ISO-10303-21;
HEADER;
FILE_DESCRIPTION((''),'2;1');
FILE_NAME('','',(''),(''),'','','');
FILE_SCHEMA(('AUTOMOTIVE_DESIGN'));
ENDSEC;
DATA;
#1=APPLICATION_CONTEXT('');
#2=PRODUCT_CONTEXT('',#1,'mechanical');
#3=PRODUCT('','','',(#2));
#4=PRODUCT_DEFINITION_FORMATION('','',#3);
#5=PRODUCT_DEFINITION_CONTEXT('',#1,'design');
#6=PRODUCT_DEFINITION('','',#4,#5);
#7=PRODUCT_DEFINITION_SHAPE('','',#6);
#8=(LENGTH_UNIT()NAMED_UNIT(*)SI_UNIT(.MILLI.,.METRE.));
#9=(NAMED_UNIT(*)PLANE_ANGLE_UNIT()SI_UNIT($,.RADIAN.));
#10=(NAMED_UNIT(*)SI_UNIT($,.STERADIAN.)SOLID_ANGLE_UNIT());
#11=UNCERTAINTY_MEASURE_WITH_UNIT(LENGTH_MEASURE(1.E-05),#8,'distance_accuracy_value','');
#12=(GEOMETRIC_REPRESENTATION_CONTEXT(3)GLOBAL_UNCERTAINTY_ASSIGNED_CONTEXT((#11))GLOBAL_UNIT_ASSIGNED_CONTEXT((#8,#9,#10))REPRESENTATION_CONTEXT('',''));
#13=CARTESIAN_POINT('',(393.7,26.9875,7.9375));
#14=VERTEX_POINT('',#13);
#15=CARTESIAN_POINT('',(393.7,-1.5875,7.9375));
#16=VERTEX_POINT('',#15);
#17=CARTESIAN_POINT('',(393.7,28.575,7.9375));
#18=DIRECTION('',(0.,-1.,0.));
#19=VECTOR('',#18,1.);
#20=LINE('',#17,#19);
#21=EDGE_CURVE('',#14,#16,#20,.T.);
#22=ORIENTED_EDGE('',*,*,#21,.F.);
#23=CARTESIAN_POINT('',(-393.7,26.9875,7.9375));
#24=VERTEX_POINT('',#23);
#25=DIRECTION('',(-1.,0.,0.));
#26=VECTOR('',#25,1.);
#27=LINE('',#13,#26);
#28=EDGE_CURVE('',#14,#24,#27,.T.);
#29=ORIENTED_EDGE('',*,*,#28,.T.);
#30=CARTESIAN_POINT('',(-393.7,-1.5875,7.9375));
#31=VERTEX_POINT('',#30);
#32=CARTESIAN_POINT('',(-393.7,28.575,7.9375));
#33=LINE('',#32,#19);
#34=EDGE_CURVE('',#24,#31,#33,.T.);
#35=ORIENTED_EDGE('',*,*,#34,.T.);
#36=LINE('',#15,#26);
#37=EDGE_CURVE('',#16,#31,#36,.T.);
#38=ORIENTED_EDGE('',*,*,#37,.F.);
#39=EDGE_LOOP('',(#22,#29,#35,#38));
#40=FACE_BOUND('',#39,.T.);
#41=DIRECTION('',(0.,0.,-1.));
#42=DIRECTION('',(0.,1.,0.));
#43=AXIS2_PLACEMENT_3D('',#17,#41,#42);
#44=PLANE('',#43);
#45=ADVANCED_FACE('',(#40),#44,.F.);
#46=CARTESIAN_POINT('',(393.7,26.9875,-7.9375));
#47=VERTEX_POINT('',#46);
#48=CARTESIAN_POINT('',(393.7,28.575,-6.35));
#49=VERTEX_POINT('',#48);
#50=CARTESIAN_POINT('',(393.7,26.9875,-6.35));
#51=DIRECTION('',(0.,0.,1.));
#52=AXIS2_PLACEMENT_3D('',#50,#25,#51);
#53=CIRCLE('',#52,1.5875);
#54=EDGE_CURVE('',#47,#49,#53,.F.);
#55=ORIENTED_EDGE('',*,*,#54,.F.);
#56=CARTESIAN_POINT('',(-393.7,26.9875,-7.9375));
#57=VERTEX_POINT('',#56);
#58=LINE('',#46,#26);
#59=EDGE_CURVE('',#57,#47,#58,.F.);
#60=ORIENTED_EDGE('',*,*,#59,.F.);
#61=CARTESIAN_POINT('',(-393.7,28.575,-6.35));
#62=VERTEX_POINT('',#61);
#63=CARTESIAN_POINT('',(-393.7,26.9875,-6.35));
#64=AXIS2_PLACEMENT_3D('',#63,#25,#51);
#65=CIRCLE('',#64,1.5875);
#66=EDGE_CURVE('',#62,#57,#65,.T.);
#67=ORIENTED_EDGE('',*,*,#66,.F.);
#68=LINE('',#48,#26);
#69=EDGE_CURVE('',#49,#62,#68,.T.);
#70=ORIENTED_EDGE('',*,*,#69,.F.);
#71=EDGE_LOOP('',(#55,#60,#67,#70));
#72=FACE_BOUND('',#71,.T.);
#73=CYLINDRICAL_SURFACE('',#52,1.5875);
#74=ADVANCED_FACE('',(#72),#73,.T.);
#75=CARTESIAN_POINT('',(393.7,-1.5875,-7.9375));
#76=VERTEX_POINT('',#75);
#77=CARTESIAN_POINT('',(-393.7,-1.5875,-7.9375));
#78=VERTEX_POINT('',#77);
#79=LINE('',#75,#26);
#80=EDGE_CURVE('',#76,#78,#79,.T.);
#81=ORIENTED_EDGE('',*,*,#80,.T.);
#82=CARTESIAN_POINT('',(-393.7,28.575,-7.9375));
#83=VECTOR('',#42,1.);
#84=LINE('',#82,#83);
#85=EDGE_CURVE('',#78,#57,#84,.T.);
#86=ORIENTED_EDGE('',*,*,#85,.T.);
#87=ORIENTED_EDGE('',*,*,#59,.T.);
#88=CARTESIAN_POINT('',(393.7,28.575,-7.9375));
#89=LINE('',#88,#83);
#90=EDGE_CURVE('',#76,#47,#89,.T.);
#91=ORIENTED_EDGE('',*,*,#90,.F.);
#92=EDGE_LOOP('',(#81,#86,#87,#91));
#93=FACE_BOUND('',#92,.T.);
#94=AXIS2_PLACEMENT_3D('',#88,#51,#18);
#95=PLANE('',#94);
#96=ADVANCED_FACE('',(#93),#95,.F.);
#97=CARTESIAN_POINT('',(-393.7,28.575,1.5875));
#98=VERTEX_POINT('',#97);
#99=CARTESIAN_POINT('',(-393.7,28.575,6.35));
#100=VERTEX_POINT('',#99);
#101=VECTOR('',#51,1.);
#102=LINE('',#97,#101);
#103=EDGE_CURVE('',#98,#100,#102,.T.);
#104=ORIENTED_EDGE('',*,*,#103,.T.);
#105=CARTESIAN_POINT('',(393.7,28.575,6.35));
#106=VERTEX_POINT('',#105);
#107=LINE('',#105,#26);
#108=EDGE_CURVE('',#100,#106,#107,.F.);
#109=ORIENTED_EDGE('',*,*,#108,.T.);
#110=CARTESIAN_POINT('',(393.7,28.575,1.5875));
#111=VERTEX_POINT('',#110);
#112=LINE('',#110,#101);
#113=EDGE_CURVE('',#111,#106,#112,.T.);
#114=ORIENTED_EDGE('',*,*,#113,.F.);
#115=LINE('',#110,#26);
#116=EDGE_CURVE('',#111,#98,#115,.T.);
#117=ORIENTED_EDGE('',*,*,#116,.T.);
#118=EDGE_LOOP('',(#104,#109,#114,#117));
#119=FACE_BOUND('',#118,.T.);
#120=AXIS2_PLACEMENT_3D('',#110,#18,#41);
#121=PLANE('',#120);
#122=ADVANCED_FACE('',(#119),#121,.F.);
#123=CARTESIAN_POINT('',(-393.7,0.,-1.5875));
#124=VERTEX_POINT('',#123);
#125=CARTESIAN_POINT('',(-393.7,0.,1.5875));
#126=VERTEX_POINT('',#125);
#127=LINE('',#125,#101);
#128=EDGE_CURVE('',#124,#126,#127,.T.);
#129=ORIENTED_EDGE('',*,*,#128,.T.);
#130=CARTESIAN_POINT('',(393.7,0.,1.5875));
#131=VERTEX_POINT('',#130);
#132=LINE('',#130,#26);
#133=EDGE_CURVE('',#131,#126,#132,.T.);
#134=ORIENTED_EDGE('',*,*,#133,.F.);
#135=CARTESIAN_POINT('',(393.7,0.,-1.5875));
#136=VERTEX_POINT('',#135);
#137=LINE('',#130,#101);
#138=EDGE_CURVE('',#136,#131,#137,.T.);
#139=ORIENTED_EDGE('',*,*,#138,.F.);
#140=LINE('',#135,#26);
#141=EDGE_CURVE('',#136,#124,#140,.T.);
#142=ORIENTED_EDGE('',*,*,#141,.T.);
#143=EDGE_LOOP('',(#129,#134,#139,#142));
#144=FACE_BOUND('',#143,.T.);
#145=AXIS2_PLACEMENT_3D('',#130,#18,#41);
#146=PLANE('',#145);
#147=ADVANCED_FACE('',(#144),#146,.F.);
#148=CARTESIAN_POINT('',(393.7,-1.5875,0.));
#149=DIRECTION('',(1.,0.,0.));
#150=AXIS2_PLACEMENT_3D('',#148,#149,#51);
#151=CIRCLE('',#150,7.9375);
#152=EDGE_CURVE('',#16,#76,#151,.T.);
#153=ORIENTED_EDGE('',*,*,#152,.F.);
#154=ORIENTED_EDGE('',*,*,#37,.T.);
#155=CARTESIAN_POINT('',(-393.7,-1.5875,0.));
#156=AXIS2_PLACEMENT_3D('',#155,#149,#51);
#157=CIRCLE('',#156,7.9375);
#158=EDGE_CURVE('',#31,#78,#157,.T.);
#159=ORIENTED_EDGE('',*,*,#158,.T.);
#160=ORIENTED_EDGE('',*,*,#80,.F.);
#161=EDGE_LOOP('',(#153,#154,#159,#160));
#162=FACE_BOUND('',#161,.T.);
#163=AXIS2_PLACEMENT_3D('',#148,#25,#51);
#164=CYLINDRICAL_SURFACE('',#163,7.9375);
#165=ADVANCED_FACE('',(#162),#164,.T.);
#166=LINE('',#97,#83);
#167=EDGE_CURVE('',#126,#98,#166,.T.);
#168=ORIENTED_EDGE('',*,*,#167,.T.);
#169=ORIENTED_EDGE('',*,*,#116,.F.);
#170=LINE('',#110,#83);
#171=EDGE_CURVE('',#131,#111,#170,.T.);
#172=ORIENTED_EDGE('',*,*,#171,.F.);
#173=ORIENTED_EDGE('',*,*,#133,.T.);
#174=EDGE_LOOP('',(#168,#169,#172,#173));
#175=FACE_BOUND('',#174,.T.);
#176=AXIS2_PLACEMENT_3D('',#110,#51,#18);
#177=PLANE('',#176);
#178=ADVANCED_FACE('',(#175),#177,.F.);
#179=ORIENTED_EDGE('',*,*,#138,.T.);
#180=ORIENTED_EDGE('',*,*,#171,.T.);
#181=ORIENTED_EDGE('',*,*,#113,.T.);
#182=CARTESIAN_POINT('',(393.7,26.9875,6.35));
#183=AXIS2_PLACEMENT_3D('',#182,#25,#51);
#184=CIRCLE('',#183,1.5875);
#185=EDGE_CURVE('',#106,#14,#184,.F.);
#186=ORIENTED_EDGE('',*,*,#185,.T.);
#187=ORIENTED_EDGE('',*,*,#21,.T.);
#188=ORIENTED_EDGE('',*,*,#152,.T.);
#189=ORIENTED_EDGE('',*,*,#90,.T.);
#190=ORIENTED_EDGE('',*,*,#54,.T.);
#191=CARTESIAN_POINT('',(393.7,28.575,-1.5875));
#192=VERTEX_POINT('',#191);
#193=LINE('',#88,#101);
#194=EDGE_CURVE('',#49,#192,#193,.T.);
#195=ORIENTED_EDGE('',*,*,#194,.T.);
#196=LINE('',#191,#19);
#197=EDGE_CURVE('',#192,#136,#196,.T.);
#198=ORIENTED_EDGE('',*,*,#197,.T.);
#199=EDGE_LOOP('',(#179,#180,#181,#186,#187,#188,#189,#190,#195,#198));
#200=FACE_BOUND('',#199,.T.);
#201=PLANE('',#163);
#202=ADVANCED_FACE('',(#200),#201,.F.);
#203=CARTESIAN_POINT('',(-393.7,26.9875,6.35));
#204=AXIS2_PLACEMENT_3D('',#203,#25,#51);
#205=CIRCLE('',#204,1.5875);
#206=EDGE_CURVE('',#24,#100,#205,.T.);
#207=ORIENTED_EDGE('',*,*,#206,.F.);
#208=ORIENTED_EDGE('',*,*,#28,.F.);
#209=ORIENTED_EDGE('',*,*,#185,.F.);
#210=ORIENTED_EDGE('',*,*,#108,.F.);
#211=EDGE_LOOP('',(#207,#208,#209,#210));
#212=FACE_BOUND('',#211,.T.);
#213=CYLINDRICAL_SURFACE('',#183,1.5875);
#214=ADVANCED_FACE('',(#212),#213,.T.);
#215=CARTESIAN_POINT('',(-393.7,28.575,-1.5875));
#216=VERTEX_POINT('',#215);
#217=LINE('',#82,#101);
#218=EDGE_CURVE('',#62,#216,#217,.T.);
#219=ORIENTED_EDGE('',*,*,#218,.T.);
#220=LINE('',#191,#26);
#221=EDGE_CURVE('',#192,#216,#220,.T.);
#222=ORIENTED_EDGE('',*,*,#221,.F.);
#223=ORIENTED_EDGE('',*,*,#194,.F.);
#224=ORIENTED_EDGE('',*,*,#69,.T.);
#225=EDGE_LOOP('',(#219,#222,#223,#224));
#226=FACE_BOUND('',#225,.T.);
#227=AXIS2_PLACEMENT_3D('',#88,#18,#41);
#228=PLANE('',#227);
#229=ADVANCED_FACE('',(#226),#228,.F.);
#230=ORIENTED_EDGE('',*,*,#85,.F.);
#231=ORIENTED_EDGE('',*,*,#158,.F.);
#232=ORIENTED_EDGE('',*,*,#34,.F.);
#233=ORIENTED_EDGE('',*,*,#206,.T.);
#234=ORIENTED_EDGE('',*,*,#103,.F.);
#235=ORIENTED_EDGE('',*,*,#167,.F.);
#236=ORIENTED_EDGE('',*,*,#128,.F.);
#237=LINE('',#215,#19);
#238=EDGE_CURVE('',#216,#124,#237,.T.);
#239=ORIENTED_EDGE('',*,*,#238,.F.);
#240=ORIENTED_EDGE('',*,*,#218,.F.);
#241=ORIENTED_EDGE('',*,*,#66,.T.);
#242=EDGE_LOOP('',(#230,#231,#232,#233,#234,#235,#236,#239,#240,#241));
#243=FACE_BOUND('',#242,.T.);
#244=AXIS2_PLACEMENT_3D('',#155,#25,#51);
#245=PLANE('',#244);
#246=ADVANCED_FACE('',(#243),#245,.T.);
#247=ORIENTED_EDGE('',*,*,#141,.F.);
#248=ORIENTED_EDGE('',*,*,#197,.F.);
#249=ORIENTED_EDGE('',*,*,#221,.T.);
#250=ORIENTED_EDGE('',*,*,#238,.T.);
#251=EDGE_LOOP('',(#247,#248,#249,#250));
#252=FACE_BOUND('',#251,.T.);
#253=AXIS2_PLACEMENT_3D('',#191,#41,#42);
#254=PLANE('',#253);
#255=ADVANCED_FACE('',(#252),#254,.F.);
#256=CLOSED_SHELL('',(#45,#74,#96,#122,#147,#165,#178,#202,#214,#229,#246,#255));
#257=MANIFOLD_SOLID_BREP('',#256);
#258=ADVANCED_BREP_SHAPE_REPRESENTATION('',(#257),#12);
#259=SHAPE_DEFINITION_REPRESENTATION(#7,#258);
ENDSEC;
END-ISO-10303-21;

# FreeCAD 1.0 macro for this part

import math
import FreeCAD as App
import Part
import Sketcher

V = App.Vector
Q = App.Units.Quantity


def edges_at(feature, points):
    """Names of the edges that pass closest to the given points."""
    edges = feature.Shape.Edges
    near = lambda p: min(range(len(edges)), key=lambda i: edges[i].distToShape(Part.Vertex(*p))[0])
    return sorted({f"Edge{near(p) + 1}" for p in points})

doc = App.newDocument("Part")
params = doc.addObject("Spreadsheet::Sheet", "Params")
for row, (alias, value) in enumerate([
    ("sketch1_radius", "0.3125 in"),
    ("sketch1_height", "0.25 in"),
    ("sketch1_width", "1.1875 in"),
    ("sketch1_width2", "1.125 in"),
    ("pad1_length", "31 in"),
    ("fillet_radius", "0.0625 in"),
], start=1):
    params.set(f"A{row}", alias)
    params.set(f"B{row}", "=" + value)
    params.setAlias(f"B{row}", alias)

body = doc.addObject("PartDesign::Body", "Body")

# Sketch on YZ plane
sketch1 = body.newObject("Sketcher::SketchObject", "Sketch")
sketch1.AttachmentSupport = (doc.getObject("YZ_Plane"), [""])
sketch1.MapMode = "FlatFace"
sketch1.addGeometry([
    Part.LineSegment(V(28.575, 1.5875, 0), V(28.575, 7.9375, 0)),  # 0
    Part.LineSegment(V(28.575, 7.9375, 0), V(-1.5875, 7.9375, 0)),  # 1
    Part.ArcOfCircle(Part.Circle(V(-1.5875, 0, 0), V(0, 0, 1), 7.9375), math.radians(90), math.radians(270)),  # 2
    Part.LineSegment(V(-1.5875, -7.9375, 0), V(28.575, -7.9375, 0)),  # 3
    Part.LineSegment(V(28.575, -7.9375, 0), V(28.575, -1.5875, 0)),  # 4
    Part.LineSegment(V(28.575, -1.5875, 0), V(0, -1.5875, 0)),  # 5
    Part.LineSegment(V(0, -1.5875, 0), V(0, 1.5875, 0)),  # 6
    Part.LineSegment(V(0, 1.5875, 0), V(28.575, 1.5875, 0)),  # 7
], False)
sketch1.addConstraint([
    Sketcher.Constraint("Coincident", 0, 2, 1, 1),
    Sketcher.Constraint("Tangent", 1, 2, 2, 1),
    Sketcher.Constraint("Tangent", 2, 2, 3, 1),
    Sketcher.Constraint("Coincident", 3, 2, 4, 1),
    Sketcher.Constraint("Coincident", 4, 2, 5, 1),
    Sketcher.Constraint("Coincident", 5, 2, 6, 1),
    Sketcher.Constraint("Coincident", 6, 2, 7, 1),
    Sketcher.Constraint("Coincident", 7, 2, 0, 1),
    Sketcher.Constraint("Vertical", 0),
    Sketcher.Constraint("Horizontal", 1),
    Sketcher.Constraint("Horizontal", 3),
    Sketcher.Constraint("Vertical", 4),
    Sketcher.Constraint("Horizontal", 5),
    Sketcher.Constraint("Vertical", 6),
    Sketcher.Constraint("Horizontal", 7),
    Sketcher.Constraint("Symmetric", 5, 2, 6, 2, -1, 1),
    Sketcher.Constraint("Symmetric", 0, 2, 3, 2, -1),
    Sketcher.Constraint("Radius", 2, Q("0.3125 in")),
    Sketcher.Constraint("DistanceY", 0, 1, 0, 2, Q("0.25 in")),
    Sketcher.Constraint("DistanceX", 1, 2, 1, 1, Q("1.1875 in")),
    Sketcher.Constraint("DistanceX", 5, 2, 5, 1, Q("1.125 in")),
])
sketch1.setExpression("Constraints[17]", "Params.sketch1_radius")
sketch1.setExpression("Constraints[18]", "Params.sketch1_height")
sketch1.setExpression("Constraints[19]", "Params.sketch1_width")
sketch1.setExpression("Constraints[20]", "Params.sketch1_width2")
pad1 = body.newObject("PartDesign::Pad", "Pad")
pad1.Profile = sketch1
pad1.setExpression("Length", "Params.pad1_length")
pad1.Midplane = True
doc.recompute()

fillet = body.newObject("PartDesign::Fillet", "Fillet")
fillet.Base = (pad1, edges_at(pad1, [(0, 28.575, -7.938), (0, 28.575, 7.938)]))
fillet.setExpression("Radius", "Params.fillet_radius")

doc.recompute()
